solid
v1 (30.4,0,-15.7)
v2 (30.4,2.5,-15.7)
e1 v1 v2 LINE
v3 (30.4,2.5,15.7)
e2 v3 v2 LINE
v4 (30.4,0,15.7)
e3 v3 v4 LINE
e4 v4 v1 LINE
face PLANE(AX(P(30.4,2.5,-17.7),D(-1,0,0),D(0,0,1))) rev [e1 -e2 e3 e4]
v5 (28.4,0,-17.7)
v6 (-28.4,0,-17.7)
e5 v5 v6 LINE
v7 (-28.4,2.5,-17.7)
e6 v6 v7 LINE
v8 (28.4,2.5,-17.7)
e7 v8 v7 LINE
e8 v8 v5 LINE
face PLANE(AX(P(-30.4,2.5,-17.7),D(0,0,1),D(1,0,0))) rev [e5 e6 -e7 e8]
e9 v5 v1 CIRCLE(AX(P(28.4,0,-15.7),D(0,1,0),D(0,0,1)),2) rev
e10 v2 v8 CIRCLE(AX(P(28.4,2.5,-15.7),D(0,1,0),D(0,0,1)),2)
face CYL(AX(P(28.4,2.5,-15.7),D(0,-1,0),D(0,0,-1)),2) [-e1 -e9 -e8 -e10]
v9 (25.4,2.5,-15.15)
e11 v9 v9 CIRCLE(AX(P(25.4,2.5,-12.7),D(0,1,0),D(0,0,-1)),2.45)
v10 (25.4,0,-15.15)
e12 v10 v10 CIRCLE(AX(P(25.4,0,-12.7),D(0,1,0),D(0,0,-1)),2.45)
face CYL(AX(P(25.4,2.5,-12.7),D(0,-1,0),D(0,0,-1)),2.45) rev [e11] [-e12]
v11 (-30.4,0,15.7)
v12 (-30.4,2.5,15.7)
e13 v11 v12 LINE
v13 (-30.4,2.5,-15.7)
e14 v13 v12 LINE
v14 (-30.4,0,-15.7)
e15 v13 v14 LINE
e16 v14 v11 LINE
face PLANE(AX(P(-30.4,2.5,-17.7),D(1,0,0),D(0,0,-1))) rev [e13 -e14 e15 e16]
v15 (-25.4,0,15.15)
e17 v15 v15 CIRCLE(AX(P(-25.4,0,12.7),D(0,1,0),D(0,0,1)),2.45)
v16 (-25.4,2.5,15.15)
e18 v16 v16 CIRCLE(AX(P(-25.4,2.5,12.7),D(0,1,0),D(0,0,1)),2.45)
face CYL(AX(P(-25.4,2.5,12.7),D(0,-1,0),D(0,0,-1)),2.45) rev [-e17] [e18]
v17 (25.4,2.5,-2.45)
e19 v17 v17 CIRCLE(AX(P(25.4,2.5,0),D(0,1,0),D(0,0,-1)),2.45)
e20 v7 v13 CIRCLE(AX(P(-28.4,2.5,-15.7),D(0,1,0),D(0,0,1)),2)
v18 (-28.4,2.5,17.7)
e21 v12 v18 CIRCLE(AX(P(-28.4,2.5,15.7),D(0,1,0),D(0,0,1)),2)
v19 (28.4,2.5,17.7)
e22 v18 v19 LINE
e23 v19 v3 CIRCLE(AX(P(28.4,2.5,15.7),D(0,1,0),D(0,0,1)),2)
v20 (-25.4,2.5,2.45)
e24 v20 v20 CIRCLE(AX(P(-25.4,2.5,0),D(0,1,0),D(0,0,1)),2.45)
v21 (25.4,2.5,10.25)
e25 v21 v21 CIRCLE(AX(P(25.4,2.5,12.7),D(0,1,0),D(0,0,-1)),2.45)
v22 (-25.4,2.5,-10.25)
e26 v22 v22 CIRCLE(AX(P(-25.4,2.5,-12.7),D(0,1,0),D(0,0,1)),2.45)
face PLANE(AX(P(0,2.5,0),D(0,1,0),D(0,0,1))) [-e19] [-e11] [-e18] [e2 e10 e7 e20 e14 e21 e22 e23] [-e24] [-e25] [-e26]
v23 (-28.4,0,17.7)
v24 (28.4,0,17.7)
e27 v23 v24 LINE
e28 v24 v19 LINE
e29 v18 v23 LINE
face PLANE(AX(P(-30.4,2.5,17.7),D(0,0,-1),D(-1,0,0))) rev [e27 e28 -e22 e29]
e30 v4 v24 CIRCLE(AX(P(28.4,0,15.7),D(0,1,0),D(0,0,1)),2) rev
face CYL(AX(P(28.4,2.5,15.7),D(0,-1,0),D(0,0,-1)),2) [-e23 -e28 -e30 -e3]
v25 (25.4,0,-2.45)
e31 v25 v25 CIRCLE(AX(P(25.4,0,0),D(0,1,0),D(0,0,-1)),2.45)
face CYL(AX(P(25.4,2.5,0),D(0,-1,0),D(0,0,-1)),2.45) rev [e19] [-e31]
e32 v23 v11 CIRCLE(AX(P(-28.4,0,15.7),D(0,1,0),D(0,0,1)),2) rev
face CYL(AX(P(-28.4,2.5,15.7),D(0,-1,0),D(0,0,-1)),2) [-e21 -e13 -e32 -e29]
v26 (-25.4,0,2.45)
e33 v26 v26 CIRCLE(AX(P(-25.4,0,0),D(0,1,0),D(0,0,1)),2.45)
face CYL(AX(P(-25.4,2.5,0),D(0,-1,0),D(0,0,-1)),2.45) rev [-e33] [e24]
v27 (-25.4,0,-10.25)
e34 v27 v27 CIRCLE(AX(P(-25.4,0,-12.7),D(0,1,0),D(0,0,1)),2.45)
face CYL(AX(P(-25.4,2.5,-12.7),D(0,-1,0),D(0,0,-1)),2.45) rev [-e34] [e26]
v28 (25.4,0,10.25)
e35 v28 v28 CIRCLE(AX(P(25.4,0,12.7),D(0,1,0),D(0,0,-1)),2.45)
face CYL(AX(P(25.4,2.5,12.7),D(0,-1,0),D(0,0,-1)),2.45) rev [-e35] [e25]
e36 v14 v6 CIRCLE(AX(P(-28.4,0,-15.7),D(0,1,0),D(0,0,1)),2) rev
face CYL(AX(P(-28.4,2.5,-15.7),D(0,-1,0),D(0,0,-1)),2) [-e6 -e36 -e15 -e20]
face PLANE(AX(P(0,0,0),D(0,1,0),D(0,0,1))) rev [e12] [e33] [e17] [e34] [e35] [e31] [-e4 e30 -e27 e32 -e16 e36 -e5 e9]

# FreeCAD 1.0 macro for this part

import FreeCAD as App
import Part
import Sketcher
from FreeCAD import Vector


def edges_at(feature, points):
    """Names of the edges that pass closest to the given points."""
    edges = feature.Shape.Edges
    near = lambda p: min(range(len(edges)), key=lambda i: edges[i].distToShape(Part.Vertex(*p))[0])
    return sorted({f"Edge{near(p) + 1}" for p in points})

doc = App.newDocument("Part")
body = doc.addObject("PartDesign::Body", "Body")

sketch1 = body.newObject("Sketcher::SketchObject", "Sketch")
sketch1.AttachmentSupport = (doc.getObject("XZ_Plane"), [""])
sketch1.MapMode = "FlatFace"
sketch1.addGeometry(Part.LineSegment(Vector(-30.4, -17.7, 0), Vector(-30.4, 17.7, 0)), False)
sketch1.addGeometry(Part.LineSegment(Vector(-30.4, 17.7, 0), Vector(30.4, 17.7, 0)), False)
sketch1.addGeometry(Part.LineSegment(Vector(30.4, 17.7, 0), Vector(30.4, -17.7, 0)), False)
sketch1.addGeometry(Part.LineSegment(Vector(30.4, -17.7, 0), Vector(-30.4, -17.7, 0)), False)
sketch1.addGeometry(Part.Circle(Vector(-25.4, 12.7, 0), Vector(0, 0, 1), 2.5), False)
sketch1.addGeometry(Part.Circle(Vector(25.4, 12.7, 0), Vector(0, 0, 1), 2.5), False)
sketch1.addGeometry(Part.Circle(Vector(-25.4, 0, 0), Vector(0, 0, 1), 2.5), False)
sketch1.addGeometry(Part.Circle(Vector(-25.4, -12.7, 0), Vector(0, 0, 1), 2.5), False)
sketch1.addGeometry(Part.Circle(Vector(25.4, 0, 0), Vector(0, 0, 1), 2.5), False)
sketch1.addGeometry(Part.Circle(Vector(25.4, -12.7, 0), Vector(0, 0, 1), 2.5), False)
sketch1.addConstraint(Sketcher.Constraint("Coincident", 0, 2, 1, 1))
sketch1.addConstraint(Sketcher.Constraint("Coincident", 1, 2, 2, 1))
sketch1.addConstraint(Sketcher.Constraint("Coincident", 2, 2, 3, 1))
sketch1.addConstraint(Sketcher.Constraint("Coincident", 3, 2, 0, 1))
sketch1.addConstraint(Sketcher.Constraint("Vertical", 0))
sketch1.addConstraint(Sketcher.Constraint("Horizontal", 1))
sketch1.addConstraint(Sketcher.Constraint("Vertical", 2))
sketch1.addConstraint(Sketcher.Constraint("Horizontal", 3))
sketch1.addConstraint(Sketcher.Constraint("Equal", 4, 5))
sketch1.addConstraint(Sketcher.Constraint("Equal", 5, 6))
sketch1.addConstraint(Sketcher.Constraint("Equal", 6, 7))
sketch1.addConstraint(Sketcher.Constraint("Equal", 7, 8))
sketch1.addConstraint(Sketcher.Constraint("Equal", 8, 9))
sketch1.addConstraint(Sketcher.Constraint("Symmetric", 5, 3, 7, 3, -1, 1))
sketch1.addConstraint(Sketcher.Constraint("Symmetric", 6, 3, 8, 3, -1, 1))
sketch1.addConstraint(Sketcher.Constraint("Symmetric", 4, 3, 9, 3, -1, 1))
sketch1.addConstraint(Sketcher.Constraint("Symmetric", 0, 2, 2, 2, -1, 1))
sketch1.addConstraint(Sketcher.Constraint("Symmetric", 4, 3, 5, 3, -2))
sketch1.addConstraint(Sketcher.Constraint("PointOnObject", 6, 3, -1))
sketch1.addConstraint(Sketcher.Constraint("Vertical", 4, 3, 6, 3))
sketch1.addConstraint(Sketcher.Constraint("Diameter", 4, 4.9))
sketch1.addConstraint(Sketcher.Constraint("DistanceX", 1, 1, 1, 2, 60.8))
sketch1.addConstraint(Sketcher.Constraint("DistanceY", 0, 1, 0, 2, 35.4))
sketch1.addConstraint(Sketcher.Constraint("DistanceX", 0, 2, 4, 3, 5.0))
sketch1.addConstraint(Sketcher.Constraint("DistanceY", 4, 3, 0, 2, 5.0))
pad1 = body.newObject("PartDesign::Pad", "Pad")
pad1.Profile = sketch1
pad1.Length = 2.5
pad1.Reversed = True
doc.recompute()

fillet = body.newObject("PartDesign::Fillet", "Fillet")
fillet.Base = (pad1, edges_at(pad1, [
    (30.4, 1.25, 17.7),
    (-30.4, 1.25, 17.7),
    (-30.4, 1.25, -17.7),
    (30.4, 1.25, -17.7),
]))
fillet.Radius = 2

doc.recompute()
